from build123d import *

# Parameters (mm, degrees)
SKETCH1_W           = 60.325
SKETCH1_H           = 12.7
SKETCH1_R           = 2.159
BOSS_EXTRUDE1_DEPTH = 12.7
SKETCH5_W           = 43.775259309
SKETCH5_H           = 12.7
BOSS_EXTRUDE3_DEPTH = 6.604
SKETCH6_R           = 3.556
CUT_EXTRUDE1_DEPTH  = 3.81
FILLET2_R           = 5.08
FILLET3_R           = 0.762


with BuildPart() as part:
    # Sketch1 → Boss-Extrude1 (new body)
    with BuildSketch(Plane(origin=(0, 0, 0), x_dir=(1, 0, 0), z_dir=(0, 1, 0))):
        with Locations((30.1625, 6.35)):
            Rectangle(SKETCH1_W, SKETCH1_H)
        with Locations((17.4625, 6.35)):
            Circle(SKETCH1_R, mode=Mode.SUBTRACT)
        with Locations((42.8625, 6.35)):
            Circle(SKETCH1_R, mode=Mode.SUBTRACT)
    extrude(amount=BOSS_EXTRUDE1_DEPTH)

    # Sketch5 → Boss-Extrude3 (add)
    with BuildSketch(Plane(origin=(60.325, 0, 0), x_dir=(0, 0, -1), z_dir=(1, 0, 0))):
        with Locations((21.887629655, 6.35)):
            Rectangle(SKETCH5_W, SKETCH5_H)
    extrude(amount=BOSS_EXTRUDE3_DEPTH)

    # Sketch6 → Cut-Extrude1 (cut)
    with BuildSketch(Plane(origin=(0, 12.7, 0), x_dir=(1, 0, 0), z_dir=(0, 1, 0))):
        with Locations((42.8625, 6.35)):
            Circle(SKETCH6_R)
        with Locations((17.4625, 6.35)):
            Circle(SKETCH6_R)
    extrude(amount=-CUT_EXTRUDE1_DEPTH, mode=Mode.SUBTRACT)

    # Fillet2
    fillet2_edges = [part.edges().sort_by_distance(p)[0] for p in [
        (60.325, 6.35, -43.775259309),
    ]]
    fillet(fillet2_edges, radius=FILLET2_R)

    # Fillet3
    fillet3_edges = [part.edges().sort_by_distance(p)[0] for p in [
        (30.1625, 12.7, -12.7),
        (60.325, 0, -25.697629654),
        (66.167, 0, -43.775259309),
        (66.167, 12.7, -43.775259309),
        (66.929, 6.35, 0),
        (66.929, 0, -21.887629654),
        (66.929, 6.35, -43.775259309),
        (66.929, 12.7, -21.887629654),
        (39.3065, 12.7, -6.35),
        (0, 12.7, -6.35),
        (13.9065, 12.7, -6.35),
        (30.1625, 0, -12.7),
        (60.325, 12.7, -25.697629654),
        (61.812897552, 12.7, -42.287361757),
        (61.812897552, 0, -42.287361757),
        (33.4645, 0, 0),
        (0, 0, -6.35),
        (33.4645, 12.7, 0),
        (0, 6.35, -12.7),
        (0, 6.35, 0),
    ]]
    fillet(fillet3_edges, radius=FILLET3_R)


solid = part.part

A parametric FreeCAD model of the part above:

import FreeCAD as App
import Part
import Sketcher
Q = App.Units.Quantity


def edges_at(feature, points):
    """Names of the edges that pass closest to the given points."""
    edges = feature.Shape.Edges
    near = lambda p: min(range(len(edges)), key=lambda i: edges[i].distToShape(Part.Vertex(*p))[0])
    return sorted({f"Edge{near(p) + 1}" for p in points})


def add_polygon(sketch, points):
    """Adds a closed chain of lines whose ends are joined by coincident constraints."""
    first, n = sketch.GeometryCount, len(points)
    for a, b in zip(points, points[1:] + points[:1]):
        sketch.addGeometry(Part.LineSegment(App.Vector(*a, 0), App.Vector(*b, 0)), False)
    for i in range(n):
        sketch.addConstraint(Sketcher.Constraint("Coincident", first + i, 2, first + (i + 1) % n, 1))

doc = App.newDocument("Part")
body = doc.addObject("PartDesign::Body", "Body")

# Sketch on XZ plane
sketch1 = body.newObject("Sketcher::SketchObject", "Sketch")
sketch1.AttachmentSupport = (doc.getObject("XZ_Plane"), [""])
sketch1.MapMode = "FlatFace"
add_polygon(sketch1, [(0, -12.7), (0, 0), (60.3, 0), (60.3, -12.7)])  # lines 0-3
sketch1.addGeometry(Part.Circle(App.Vector(17.5, -6.3, 0), App.Vector(0, 0, 1), 2.2), False)  # 4
sketch1.addGeometry(Part.Circle(App.Vector(42.9, -6.3, 0), App.Vector(0, 0, 1), 2.2), False)  # 5
sketch1.addConstraint(Sketcher.Constraint("Vertical", 0))
sketch1.addConstraint(Sketcher.Constraint("Horizontal", 1))
sketch1.addConstraint(Sketcher.Constraint("Vertical", 2))
sketch1.addConstraint(Sketcher.Constraint("Horizontal", 3))
sketch1.addConstraint(Sketcher.Constraint("Coincident", 0, 2, -1, 1))
sketch1.addConstraint(Sketcher.Constraint("Equal", 4, 5))
sketch1.addConstraint(Sketcher.Constraint("Horizontal", 4, 3, 5, 3))
sketch1.addConstraint(Sketcher.Constraint("Diameter", 4, Q("0.17 in")))
sketch1.addConstraint(Sketcher.Constraint("DistanceY", 0, 1, 0, 2, Q("0.5 in")))
sketch1.addConstraint(Sketcher.Constraint("DistanceX", 4, 3, 5, 3, Q("1 in")))
sketch1.addConstraint(Sketcher.Constraint("DistanceX", 1, 1, 1, 2, Q("2.375 in")))
sketch1.addConstraint(Sketcher.Constraint("DistanceY", 4, 3, -1, 1, Q("0.25 in")))
sketch1.addConstraint(Sketcher.Constraint("DistanceX", -1, 1, 4, 3, Q("0.6875 in")))
pad1 = body.newObject("PartDesign::Pad", "Pad")
pad1.Profile = sketch1
pad1.Length = Q("0.5 in")
pad1.Reversed = True

# Sketch on YZ plane
sketch2 = body.newObject("Sketcher::SketchObject", "Sketch001")
sketch2.AttachmentSupport = (doc.getObject("YZ_Plane"), [""])
sketch2.MapMode = "FlatFace"
sketch2.AttachmentOffset = App.Placement(App.Vector(0, 0, 2.375 * 25.4), App.Rotation())
add_polygon(sketch2, [(13, 0), (0, 0), (0, -44), (13, -44)])  # lines 0-3
sketch2.addConstraint(Sketcher.Constraint("Horizontal", 0))
sketch2.addConstraint(Sketcher.Constraint("Vertical", 1))
sketch2.addConstraint(Sketcher.Constraint("Horizontal", 2))
sketch2.addConstraint(Sketcher.Constraint("Vertical", 3))
sketch2.addConstraint(Sketcher.Constraint("Coincident", 0, 2, -1, 1))
sketch2.addConstraint(Sketcher.Constraint("DistanceX", 0, 2, 0, 1, Q("0.5 in")))
sketch2.addConstraint(Sketcher.Constraint("DistanceY", 1, 2, 1, 1, Q("43.775259 mm")))
pad2 = body.newObject("PartDesign::Pad", "Pad001")
pad2.Profile = sketch2
pad2.Length = Q("0.26 in")

# Sketch on XZ plane
sketch3 = body.newObject("Sketcher::SketchObject", "Sketch002")
sketch3.AttachmentSupport = (doc.getObject("XZ_Plane"), [""])
sketch3.MapMode = "FlatFace"
sketch3.AttachmentOffset = App.Placement(App.Vector(0, 0, -0.5 * 25.4), App.Rotation())
sketch3.addGeometry(Part.Circle(App.Vector(42.9, -6.3, 0), App.Vector(0, 0, 1), 3.6), False)
sketch3.addGeometry(Part.Circle(App.Vector(17.5, -6.3, 0), App.Vector(0, 0, 1), 3.6), False)
sketch3.addConstraint(Sketcher.Constraint("Equal", 0, 1))
sketch3.addConstraint(Sketcher.Constraint("Horizontal", 0, 3, 1, 3))
sketch3.addConstraint(Sketcher.Constraint("Diameter", 0, Q("0.28 in")))
sketch3.addConstraint(Sketcher.Constraint("DistanceX", 1, 3, 0, 3, Q("1 in")))
sketch3.addConstraint(Sketcher.Constraint("DistanceY", 0, 3, -1, 1, Q("0.25 in")))
sketch3.addConstraint(Sketcher.Constraint("DistanceX", -1, 1, 0, 3, Q("1.6875 in")))
pocket1 = body.newObject("PartDesign::Pocket", "Pocket")
pocket1.Profile = sketch3
pocket1.Length = Q("0.15 in")
pocket1.Reversed = True
doc.recompute()

fillet = body.newObject("PartDesign::Fillet", "Fillet")
fillet.Base = (pocket1, edges_at(pocket1, [(60.325, 6.35, -43.775)]))
fillet.Radius = Q("0.2 in")
doc.recompute()

fillet2 = body.newObject("PartDesign::Fillet", "Fillet001")
fillet2.Base = (fillet, edges_at(fillet, [
    (30.163, 12.7, -12.7),
    (60.325, 0, -25.698),
    (66.167, 0, -43.775),
    (66.167, 12.7, -43.775),
    (66.929, 6.35, 0),
    (66.929, 0, -21.888),
    (66.929, 6.35, -43.775),
    (66.929, 12.7, -21.888),
    (39.306, 12.7, -6.35),
    (0, 12.7, -6.35),
    (13.906, 12.7, -6.35),
    (30.163, 0, -12.7),
    (60.325, 12.7, -25.698),
    (61.813, 12.7, -42.287),
    (61.813, 0, -42.287),
    (30.163, 0, 0),
    (0, 0, -6.35),
    (30.163, 12.7, 0),
    (0, 6.35, -12.7),
    (0, 6.35, 0),
]))
fillet2.Radius = Q("0.03 in")

doc.recompute()
